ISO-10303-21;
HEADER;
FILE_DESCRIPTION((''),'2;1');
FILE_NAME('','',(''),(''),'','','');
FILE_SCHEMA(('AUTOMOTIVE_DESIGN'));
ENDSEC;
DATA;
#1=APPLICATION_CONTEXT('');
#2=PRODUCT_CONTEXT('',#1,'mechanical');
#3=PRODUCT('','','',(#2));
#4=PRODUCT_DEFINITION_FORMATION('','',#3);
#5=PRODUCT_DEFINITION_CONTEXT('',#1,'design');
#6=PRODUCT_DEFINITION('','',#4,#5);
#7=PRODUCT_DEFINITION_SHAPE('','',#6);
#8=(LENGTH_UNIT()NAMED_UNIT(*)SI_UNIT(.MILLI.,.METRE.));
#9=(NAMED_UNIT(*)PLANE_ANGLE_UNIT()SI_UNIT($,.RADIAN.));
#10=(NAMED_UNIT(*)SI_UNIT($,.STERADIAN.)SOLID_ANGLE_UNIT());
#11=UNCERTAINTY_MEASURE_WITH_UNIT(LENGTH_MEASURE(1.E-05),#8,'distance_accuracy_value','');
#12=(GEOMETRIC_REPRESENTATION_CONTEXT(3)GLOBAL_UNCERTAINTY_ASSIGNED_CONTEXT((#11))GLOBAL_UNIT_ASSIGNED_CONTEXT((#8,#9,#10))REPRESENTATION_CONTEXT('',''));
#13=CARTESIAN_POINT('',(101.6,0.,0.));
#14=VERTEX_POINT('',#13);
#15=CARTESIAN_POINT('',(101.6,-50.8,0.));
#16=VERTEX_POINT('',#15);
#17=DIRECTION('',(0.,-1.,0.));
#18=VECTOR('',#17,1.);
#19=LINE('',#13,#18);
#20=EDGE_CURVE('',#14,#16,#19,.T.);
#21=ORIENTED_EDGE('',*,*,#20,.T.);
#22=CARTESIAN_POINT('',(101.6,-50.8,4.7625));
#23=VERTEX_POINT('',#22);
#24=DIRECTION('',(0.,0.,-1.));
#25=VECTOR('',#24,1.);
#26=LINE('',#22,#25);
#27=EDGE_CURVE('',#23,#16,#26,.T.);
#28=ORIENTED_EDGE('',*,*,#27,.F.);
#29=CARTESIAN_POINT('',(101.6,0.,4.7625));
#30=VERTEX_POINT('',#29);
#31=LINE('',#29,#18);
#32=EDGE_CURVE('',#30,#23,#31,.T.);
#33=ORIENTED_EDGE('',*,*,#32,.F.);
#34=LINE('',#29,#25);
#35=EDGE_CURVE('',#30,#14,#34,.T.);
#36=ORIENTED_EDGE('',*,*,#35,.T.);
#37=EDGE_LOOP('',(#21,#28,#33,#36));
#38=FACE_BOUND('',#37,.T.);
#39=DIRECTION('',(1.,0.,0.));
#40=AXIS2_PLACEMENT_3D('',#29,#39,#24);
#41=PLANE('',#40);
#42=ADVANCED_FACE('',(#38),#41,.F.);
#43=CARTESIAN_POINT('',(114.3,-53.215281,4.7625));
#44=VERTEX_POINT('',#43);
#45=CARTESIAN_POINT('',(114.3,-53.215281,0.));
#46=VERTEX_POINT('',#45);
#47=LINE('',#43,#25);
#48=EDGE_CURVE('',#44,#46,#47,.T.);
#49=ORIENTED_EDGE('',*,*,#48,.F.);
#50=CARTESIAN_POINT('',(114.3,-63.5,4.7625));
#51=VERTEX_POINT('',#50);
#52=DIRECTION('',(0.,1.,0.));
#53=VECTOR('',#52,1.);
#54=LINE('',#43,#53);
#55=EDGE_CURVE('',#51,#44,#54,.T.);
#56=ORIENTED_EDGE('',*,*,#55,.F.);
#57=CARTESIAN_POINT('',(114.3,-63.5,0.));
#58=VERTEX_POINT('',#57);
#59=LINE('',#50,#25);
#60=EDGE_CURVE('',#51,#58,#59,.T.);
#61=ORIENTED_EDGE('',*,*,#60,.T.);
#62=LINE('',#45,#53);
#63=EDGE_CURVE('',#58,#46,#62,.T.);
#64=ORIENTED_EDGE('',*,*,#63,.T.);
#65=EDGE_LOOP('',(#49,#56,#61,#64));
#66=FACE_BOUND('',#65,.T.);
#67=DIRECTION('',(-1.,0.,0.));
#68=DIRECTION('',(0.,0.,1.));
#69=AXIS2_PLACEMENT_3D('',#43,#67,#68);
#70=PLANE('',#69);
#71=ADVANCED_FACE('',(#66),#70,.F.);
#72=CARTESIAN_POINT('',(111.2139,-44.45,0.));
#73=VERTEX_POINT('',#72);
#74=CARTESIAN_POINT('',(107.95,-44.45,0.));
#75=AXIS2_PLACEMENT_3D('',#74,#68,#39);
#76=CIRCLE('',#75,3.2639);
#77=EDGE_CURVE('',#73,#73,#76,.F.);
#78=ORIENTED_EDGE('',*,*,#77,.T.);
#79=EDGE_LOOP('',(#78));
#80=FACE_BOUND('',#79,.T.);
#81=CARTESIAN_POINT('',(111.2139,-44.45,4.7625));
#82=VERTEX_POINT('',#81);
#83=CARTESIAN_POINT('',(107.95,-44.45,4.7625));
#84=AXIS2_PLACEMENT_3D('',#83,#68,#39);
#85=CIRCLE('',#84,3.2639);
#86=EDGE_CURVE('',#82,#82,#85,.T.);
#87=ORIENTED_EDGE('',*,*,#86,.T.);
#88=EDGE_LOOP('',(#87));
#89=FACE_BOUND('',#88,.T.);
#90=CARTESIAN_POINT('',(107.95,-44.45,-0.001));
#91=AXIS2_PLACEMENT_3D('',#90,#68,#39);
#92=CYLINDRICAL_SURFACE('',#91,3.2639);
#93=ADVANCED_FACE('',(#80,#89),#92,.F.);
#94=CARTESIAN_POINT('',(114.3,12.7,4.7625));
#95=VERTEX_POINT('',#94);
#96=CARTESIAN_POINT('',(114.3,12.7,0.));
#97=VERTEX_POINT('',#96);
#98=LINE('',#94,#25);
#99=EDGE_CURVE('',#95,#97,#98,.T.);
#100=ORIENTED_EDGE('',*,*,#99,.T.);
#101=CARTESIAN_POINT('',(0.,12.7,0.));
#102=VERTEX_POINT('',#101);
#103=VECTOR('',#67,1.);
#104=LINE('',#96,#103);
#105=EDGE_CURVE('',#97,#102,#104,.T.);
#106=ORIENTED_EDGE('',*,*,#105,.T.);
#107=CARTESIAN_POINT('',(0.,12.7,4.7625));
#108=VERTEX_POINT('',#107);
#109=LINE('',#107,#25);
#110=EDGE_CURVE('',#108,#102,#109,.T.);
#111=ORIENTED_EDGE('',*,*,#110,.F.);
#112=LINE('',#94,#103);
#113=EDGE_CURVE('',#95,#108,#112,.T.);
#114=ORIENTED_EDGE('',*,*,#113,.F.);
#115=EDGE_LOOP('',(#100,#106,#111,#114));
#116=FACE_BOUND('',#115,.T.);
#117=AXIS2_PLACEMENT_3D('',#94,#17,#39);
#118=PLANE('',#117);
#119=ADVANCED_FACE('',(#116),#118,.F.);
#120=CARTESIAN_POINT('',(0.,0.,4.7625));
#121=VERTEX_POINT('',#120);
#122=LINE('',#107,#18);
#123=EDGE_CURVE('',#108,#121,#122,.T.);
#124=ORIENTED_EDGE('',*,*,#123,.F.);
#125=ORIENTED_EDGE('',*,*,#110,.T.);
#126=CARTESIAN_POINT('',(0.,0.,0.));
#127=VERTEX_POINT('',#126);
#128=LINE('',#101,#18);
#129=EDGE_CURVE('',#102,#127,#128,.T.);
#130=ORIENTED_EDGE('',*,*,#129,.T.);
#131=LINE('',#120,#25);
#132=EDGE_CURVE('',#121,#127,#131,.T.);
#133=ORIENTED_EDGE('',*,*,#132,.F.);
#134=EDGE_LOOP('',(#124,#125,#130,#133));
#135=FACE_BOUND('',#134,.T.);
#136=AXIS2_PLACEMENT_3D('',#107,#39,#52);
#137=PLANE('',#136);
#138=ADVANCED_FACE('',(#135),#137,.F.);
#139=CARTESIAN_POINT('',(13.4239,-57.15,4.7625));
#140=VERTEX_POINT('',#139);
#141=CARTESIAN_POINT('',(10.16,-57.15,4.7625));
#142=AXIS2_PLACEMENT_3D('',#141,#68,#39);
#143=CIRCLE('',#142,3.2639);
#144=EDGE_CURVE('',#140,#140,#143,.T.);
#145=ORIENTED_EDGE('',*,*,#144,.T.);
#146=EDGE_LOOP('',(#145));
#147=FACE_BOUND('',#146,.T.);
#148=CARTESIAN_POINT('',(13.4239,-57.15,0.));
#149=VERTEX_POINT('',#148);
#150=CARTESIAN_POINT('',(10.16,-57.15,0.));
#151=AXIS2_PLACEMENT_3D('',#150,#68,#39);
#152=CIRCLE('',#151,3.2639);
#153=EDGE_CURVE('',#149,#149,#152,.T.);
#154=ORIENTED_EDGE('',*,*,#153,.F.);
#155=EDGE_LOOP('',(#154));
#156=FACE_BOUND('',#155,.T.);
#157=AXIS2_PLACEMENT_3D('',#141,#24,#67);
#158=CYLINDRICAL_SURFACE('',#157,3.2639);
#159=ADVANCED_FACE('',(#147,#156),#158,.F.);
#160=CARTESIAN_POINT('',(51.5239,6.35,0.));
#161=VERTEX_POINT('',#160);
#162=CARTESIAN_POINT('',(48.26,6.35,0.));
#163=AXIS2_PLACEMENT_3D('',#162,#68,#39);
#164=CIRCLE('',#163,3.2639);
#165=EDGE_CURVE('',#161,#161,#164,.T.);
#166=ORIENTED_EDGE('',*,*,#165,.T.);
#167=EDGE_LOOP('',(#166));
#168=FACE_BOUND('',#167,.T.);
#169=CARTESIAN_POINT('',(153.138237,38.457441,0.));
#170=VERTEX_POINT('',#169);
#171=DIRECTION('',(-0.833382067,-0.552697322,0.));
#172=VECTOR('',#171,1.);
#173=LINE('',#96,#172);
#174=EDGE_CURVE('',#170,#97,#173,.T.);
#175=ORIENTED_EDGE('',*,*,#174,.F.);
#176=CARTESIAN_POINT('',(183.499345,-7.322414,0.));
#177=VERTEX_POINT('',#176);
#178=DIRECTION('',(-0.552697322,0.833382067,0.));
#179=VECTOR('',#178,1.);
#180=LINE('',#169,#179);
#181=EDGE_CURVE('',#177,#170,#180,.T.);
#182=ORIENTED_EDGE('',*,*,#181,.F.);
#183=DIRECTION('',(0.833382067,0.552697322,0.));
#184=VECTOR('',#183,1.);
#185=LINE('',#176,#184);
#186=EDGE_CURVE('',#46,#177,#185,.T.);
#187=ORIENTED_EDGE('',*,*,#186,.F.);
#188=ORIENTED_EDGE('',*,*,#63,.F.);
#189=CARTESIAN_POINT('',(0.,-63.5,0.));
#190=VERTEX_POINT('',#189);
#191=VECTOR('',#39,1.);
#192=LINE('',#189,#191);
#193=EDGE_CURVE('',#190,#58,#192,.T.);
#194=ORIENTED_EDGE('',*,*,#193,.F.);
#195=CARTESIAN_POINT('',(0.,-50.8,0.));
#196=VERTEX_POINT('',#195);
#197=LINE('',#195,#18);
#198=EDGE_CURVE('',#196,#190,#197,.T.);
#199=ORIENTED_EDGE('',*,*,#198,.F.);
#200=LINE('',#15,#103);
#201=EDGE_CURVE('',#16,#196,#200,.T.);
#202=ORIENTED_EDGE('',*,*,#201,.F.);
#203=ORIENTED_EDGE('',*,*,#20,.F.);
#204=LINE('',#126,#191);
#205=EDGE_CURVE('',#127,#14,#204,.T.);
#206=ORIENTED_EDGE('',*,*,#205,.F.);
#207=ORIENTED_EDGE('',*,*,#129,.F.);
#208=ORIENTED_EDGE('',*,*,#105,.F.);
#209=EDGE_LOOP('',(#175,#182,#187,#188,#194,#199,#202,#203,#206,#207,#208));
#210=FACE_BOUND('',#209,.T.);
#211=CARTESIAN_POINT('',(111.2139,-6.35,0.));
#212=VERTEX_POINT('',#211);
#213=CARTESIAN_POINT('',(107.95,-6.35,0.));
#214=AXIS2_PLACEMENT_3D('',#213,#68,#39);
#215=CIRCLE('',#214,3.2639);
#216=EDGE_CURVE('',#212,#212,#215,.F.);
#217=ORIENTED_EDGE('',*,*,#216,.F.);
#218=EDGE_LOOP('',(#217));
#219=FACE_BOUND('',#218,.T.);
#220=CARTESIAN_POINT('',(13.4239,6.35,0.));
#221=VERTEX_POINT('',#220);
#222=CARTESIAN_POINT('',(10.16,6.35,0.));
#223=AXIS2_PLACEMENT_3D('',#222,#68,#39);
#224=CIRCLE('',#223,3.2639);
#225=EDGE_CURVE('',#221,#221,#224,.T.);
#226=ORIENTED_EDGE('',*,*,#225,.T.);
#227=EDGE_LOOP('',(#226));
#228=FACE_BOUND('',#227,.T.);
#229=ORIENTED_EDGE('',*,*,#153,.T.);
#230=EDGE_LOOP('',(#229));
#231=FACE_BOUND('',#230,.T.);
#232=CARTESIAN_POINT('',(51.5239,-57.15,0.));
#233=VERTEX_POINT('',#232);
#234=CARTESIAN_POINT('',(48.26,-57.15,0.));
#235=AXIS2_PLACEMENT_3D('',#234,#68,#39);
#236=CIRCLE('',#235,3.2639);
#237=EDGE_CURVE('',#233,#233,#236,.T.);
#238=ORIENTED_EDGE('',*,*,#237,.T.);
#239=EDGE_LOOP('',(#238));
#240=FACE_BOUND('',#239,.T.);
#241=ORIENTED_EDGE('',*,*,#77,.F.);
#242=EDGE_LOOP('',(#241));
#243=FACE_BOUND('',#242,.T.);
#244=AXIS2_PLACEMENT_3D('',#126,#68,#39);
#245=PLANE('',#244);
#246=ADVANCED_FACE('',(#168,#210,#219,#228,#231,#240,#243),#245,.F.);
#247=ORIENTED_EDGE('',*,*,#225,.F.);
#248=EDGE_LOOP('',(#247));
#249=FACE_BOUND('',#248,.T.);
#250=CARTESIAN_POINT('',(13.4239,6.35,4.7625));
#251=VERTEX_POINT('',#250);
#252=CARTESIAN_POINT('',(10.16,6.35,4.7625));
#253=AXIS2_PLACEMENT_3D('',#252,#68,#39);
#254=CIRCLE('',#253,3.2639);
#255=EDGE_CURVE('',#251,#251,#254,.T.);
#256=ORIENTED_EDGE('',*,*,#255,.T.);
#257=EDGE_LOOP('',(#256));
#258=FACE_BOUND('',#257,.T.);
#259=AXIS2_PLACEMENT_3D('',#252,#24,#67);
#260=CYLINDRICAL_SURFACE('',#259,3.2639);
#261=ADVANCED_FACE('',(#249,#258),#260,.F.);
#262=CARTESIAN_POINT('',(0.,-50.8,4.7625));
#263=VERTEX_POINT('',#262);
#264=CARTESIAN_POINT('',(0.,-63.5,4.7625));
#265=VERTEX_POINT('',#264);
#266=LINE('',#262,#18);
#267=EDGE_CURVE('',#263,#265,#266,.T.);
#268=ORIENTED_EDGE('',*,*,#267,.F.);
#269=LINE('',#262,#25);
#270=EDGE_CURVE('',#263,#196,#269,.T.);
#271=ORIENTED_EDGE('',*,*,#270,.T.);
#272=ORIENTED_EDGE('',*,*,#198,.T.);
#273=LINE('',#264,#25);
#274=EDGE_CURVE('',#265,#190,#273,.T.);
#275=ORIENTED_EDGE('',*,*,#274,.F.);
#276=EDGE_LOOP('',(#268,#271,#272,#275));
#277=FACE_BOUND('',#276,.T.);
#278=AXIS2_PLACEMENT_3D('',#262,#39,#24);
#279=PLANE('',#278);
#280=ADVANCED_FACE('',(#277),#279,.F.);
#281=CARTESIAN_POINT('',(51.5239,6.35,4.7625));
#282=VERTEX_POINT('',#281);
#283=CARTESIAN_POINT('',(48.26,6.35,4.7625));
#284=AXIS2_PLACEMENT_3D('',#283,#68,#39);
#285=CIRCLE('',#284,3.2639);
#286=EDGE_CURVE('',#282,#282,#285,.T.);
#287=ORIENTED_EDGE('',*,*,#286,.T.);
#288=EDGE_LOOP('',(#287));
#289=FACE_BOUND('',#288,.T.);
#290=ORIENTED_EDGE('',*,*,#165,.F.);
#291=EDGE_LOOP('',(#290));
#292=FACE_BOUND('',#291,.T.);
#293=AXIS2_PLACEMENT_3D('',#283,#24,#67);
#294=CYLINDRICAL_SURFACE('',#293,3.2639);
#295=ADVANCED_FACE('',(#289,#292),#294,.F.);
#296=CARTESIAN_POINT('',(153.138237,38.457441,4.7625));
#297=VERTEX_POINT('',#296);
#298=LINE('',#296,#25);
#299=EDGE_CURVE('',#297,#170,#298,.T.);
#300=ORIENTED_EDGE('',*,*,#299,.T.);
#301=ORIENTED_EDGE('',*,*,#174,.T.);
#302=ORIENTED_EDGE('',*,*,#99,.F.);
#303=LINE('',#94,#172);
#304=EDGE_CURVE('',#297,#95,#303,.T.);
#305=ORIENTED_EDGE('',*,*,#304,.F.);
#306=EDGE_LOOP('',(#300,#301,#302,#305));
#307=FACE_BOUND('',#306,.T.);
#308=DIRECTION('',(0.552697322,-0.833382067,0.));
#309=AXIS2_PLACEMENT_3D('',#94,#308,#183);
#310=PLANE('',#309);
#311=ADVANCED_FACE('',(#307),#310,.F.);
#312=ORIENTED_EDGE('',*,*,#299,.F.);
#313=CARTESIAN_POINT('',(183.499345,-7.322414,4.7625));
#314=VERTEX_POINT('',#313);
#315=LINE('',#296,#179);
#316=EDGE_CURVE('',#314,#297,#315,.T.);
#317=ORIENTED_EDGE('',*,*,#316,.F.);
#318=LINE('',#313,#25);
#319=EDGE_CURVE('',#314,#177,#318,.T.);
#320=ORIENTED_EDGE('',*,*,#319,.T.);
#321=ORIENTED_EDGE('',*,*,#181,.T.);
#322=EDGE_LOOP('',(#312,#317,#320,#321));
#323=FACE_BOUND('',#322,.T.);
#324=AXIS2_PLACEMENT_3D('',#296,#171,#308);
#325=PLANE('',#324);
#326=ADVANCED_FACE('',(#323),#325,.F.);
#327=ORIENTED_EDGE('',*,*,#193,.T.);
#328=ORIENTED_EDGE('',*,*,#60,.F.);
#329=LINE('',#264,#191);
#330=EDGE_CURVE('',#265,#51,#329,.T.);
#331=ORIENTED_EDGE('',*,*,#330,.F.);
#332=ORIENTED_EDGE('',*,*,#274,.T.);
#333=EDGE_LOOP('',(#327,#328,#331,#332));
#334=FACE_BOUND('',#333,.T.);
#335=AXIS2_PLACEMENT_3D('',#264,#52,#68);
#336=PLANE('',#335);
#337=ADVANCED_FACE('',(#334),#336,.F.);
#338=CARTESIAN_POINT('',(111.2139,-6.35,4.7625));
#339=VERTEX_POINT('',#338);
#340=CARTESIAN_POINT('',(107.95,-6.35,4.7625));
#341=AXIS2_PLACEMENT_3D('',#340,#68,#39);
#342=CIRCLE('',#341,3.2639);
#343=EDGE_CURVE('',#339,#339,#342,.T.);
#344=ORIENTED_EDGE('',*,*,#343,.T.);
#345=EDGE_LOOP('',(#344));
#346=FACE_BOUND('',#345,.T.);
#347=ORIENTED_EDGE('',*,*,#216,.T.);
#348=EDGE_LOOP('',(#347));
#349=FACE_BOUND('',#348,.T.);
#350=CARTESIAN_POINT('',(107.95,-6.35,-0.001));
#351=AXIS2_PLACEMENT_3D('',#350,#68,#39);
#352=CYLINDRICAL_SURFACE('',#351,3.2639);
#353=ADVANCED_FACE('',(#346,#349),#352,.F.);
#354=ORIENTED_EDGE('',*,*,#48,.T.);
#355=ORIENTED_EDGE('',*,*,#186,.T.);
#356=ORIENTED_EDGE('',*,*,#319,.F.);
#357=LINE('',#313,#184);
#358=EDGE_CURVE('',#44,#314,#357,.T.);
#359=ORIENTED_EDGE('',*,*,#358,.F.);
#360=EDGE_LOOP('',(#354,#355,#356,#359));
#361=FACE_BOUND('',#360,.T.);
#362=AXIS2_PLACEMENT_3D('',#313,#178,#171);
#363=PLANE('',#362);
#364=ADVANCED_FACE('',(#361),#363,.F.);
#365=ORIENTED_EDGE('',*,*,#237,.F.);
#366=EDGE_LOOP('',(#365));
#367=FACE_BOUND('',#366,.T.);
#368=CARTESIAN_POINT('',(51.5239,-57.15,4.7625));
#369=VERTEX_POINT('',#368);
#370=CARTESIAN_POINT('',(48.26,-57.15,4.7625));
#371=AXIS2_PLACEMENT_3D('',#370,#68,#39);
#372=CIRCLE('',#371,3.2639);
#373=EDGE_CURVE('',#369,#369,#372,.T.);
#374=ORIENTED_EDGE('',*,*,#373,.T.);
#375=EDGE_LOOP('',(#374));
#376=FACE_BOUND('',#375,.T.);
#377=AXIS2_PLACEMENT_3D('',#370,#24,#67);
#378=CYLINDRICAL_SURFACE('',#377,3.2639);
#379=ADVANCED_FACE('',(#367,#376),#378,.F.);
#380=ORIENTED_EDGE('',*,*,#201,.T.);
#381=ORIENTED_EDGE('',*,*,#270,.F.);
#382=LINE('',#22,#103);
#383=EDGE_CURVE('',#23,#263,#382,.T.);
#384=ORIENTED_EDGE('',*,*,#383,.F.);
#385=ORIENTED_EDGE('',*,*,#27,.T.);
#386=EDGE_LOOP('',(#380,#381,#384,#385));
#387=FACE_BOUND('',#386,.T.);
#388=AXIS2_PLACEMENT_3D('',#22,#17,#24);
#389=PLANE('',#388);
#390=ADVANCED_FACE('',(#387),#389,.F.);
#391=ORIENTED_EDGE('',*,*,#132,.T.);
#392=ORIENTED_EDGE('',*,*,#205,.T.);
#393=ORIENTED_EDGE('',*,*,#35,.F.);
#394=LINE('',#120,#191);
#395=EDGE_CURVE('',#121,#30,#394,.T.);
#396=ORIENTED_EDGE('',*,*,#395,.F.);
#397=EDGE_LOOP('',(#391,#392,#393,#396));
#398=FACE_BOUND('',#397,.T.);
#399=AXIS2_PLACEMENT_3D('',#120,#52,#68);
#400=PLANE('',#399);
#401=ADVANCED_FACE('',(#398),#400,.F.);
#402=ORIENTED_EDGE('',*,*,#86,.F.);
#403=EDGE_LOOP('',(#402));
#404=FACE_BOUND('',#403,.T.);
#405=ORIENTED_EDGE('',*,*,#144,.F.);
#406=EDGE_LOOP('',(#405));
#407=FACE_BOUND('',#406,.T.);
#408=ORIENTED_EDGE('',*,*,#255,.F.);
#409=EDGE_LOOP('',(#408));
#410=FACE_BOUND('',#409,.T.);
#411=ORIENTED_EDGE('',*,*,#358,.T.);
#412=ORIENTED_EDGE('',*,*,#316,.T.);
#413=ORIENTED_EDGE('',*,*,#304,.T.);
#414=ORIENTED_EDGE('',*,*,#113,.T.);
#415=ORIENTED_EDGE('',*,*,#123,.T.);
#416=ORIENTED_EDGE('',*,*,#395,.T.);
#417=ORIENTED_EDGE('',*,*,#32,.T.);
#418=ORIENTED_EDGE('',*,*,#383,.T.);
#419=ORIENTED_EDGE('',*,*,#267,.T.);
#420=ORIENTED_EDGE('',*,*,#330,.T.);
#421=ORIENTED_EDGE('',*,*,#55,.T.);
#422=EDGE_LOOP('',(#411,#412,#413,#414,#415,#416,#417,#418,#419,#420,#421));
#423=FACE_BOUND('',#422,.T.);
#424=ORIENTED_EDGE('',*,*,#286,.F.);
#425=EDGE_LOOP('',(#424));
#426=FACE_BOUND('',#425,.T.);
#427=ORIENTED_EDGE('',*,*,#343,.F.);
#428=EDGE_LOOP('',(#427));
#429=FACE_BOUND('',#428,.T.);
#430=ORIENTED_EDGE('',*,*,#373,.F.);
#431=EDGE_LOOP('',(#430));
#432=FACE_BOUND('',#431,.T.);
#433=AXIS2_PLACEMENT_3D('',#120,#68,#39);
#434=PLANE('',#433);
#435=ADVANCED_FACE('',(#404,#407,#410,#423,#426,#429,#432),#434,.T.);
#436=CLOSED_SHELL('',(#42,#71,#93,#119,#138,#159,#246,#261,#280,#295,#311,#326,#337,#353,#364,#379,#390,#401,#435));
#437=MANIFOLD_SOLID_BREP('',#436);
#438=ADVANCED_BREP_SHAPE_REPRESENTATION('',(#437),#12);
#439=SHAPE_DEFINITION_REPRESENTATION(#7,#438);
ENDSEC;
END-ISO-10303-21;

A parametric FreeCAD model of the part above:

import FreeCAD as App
import Part
import Sketcher
Q = App.Units.Quantity


def add_polygon(sketch, points):
    """Adds a closed chain of lines whose ends are joined by coincident constraints."""
    first, n = sketch.GeometryCount, len(points)
    for a, b in zip(points, points[1:] + points[:1]):
        sketch.addGeometry(Part.LineSegment(App.Vector(*a, 0), App.Vector(*b, 0)), False)
    for i in range(n):
        sketch.addConstraint(Sketcher.Constraint("Coincident", first + i, 2, first + (i + 1) % n, 1))

doc = App.newDocument("Part")
body = doc.addObject("PartDesign::Body", "Body")

# Sketch on XY plane
sketch1 = body.newObject("Sketcher::SketchObject", "Sketch")
sketch1.AttachmentSupport = (doc.getObject("XY_Plane"), [""])
sketch1.MapMode = "FlatFace"
add_polygon(sketch1, [(0, 0), (101.6, 0), (101.6, -50.8), (0, -50.8), (0, -63.5), (114.3, -63.5), (114.3, -53.2), (183.5, -7.3), (153.1, 38.5), (114.3, 12.7), (0, 12.7)])  # lines 0-10
sketch1.addGeometry(Part.Circle(App.Vector(10.2, -57.1, 0), App.Vector(0, 0, 1), 3.3), False)  # 11
sketch1.addGeometry(Part.Circle(App.Vector(48.3, -57.1, 0), App.Vector(0, 0, 1), 3.3), False)  # 12
sketch1.addGeometry(Part.Circle(App.Vector(10.2, 6.3, 0), App.Vector(0, 0, 1), 3.3), False)  # 13
sketch1.addGeometry(Part.Circle(App.Vector(48.3, 6.3, 0), App.Vector(0, 0, 1), 3.3), False)  # 14
sketch1.addConstraint(Sketcher.Constraint("Horizontal", 0))
sketch1.addConstraint(Sketcher.Constraint("Vertical", 1))
sketch1.addConstraint(Sketcher.Constraint("Horizontal", 2))
sketch1.addConstraint(Sketcher.Constraint("Vertical", 3))
sketch1.addConstraint(Sketcher.Constraint("Horizontal", 4))
sketch1.addConstraint(Sketcher.Constraint("Vertical", 5))
sketch1.addConstraint(Sketcher.Constraint("Horizontal", 9))
sketch1.addConstraint(Sketcher.Constraint("Vertical", 10))
sketch1.addConstraint(Sketcher.Constraint("Coincident", 10, 2, -1, 1))
sketch1.addConstraint(Sketcher.Constraint("Equal", 11, 12))
sketch1.addConstraint(Sketcher.Constraint("Equal", 12, 13))
sketch1.addConstraint(Sketcher.Constraint("Equal", 13, 14))
sketch1.addConstraint(Sketcher.Constraint("PointOnObject", 2, 2, -2))
sketch1.addConstraint(Sketcher.Constraint("Perpendicular", 6, 7))
sketch1.addConstraint(Sketcher.Constraint("Perpendicular", 7, 8))
sketch1.addConstraint(Sketcher.Constraint("Horizontal", 11, 3, 12, 3))
sketch1.addConstraint(Sketcher.Constraint("Horizontal", 13, 3, 14, 3))
sketch1.addConstraint(Sketcher.Constraint("Vertical", 11, 3, 13, 3))
sketch1.addConstraint(Sketcher.Constraint("Vertical", 12, 3, 14, 3))
sketch1.addConstraint(Sketcher.Constraint("Vertical", 5, 2, 8, 2))
sketch1.addConstraint(Sketcher.Constraint("Equal", 3, 10))
sketch1.addConstraint(Sketcher.Constraint("DistanceX", 0, 1, 0, 2, Q("4 in")))
sketch1.addConstraint(Sketcher.Constraint("DistanceY", 1, 2, 1, 1, Q("2 in")))
sketch1.addConstraint(Sketcher.Constraint("Diameter", 11, Q("0.257 in")))
sketch1.addConstraint(Sketcher.Constraint("DistanceX", 4, 1, 4, 2, Q("4.5 in")))
sketch1.addConstraint(Sketcher.Constraint("DistanceY", 3, 2, 3, 1, Q("0.5 in")))
sketch1.addConstraint(Sketcher.Constraint("DistanceX", -1, 1, 11, 3, Q("0.4 in")))
sketch1.addConstraint(Sketcher.Constraint("DistanceX", -1, 1, 12, 3, Q("1.9 in")))
sketch1.addConstraint(Sketcher.Constraint("DistanceY", 11, 3, 13, 3, Q("2.5 in")))
sketch1.addConstraint(Sketcher.Constraint("DistanceY", 11, 3, -1, 1, Q("2.25 in")))
sketch1.addConstraint(Sketcher.Constraint("DistanceY", 5, 1, 5, 2, Q("10.284719 mm")))
sketch1.addConstraint(Sketcher.Constraint("Distance", 6, Q("83.034358 mm")))
sketch1.addConstraint(Sketcher.Constraint("Distance", 8, Q("46.603159 mm")))
pad1 = body.newObject("PartDesign::Pad", "Pad")
pad1.Profile = sketch1
pad1.Length = Q("0.1875 in")

# Sketch on XY plane
sketch2 = body.newObject("Sketcher::SketchObject", "Sketch001")
sketch2.AttachmentSupport = (doc.getObject("XY_Plane"), [""])
sketch2.MapMode = "FlatFace"
sketch2.AttachmentOffset = App.Placement(App.Vector(0, 0, 0.1875 * 25.4), App.Rotation())
sketch2.addGeometry(Part.Circle(App.Vector(108, -6.3, 0), App.Vector(0, 0, 1), 3.3), False)
sketch2.addConstraint(Sketcher.Constraint("Diameter", 0, Q("0.257 in")))
sketch2.addConstraint(Sketcher.Constraint("DistanceX", -1, 1, 0, 3, Q("4.25 in")))
sketch2.addConstraint(Sketcher.Constraint("DistanceY", 0, 3, -1, 1, Q("0.25 in")))
pocket1 = body.newObject("PartDesign::Pocket", "Pocket")
pocket1.Profile = sketch2
pocket1.Type = "UpToFirst"

# Sketch on XY plane
sketch3 = body.newObject("Sketcher::SketchObject", "Sketch002")
sketch3.AttachmentSupport = (doc.getObject("XY_Plane"), [""])
sketch3.MapMode = "FlatFace"
sketch3.AttachmentOffset = App.Placement(App.Vector(0, 0, 0.1875 * 25.4), App.Rotation())
sketch3.addGeometry(Part.Circle(App.Vector(108, -44.5, 0), App.Vector(0, 0, 1), 3.3), False)
sketch3.addConstraint(Sketcher.Constraint("Diameter", 0, Q("0.257 in")))
sketch3.addConstraint(Sketcher.Constraint("DistanceX", -1, 1, 0, 3, Q("4.25 in")))
sketch3.addConstraint(Sketcher.Constraint("DistanceY", 0, 3, -1, 1, Q("1.75 in")))
pocket2 = body.newObject("PartDesign::Pocket", "Pocket001")
pocket2.Profile = sketch3
pocket2.Type = "UpToFirst"

doc.recompute()
